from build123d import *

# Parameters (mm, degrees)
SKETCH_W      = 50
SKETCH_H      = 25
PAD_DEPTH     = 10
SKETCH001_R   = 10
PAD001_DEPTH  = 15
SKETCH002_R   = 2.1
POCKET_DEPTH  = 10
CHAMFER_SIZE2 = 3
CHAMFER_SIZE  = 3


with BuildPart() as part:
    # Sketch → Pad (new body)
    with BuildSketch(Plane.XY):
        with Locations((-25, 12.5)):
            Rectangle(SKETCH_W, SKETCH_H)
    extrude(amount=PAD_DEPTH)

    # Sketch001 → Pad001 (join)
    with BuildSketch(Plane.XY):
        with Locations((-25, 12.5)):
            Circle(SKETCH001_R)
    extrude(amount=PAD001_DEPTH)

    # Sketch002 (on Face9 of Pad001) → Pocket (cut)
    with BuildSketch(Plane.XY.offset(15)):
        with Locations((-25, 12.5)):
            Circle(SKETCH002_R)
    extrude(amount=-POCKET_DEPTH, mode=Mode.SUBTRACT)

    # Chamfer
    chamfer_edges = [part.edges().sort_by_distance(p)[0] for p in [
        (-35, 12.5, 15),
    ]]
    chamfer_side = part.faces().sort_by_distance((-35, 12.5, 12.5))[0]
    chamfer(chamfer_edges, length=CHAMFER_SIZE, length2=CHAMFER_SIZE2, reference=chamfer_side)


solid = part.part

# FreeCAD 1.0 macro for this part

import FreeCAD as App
import Part
import Sketcher

V = App.Vector


def edges_at(feature, points):
    """Names of the edges that pass closest to the given points."""
    edges = feature.Shape.Edges
    near = lambda p: min(range(len(edges)), key=lambda i: edges[i].distToShape(Part.Vertex(*p))[0])
    return sorted({f"Edge{near(p) + 1}" for p in points})


def add_polygon(sketch, points):
    """Adds a closed chain of lines whose ends are joined by coincident constraints."""
    first, n = sketch.GeometryCount, len(points)
    for a, b in zip(points, points[1:] + points[:1]):
        sketch.addGeometry(Part.LineSegment(App.Vector(*a, 0), App.Vector(*b, 0)), False)
    for i in range(n):
        sketch.addConstraint(Sketcher.Constraint("Coincident", first + i, 2, first + (i + 1) % n, 1))

doc = App.newDocument("Part")
body = doc.addObject("PartDesign::Body", "Body")

# Sketch on XY plane
sketch1 = body.newObject("Sketcher::SketchObject", "Sketch")
sketch1.AttachmentSupport = (doc.getObject("XY_Plane"), [""])
sketch1.MapMode = "FlatFace"
add_polygon(sketch1, [(-50, 25), (-50, 0), (0, 0), (0, 25)])  # lines 0-3
sketch1.addConstraint([
    Sketcher.Constraint("Vertical", 0),
    Sketcher.Constraint("Horizontal", 1),
    Sketcher.Constraint("Vertical", 2),
    Sketcher.Constraint("Horizontal", 3),
    Sketcher.Constraint("Coincident", 1, 2, -1, 1),
    Sketcher.Constraint("DistanceX", 1, 1, 1, 2, 50.0),
    Sketcher.Constraint("DistanceY", 0, 2, 0, 1, 25.0),
])
pad1 = body.newObject("PartDesign::Pad", "Pad")
pad1.Profile = sketch1
pad1.Length = 10

# Sketch on XY plane
sketch2 = body.newObject("Sketcher::SketchObject", "Sketch001")
sketch2.AttachmentSupport = (doc.getObject("XY_Plane"), [""])
sketch2.MapMode = "FlatFace"
sketch2.addGeometry(Part.Circle(V(-25, 12, 0), V(0, 0, 1), 10), False)
sketch2.addConstraint([
    Sketcher.Constraint("Diameter", 0, 20.0),
    Sketcher.Constraint("DistanceX", 0, 3, -1, 1, 25.0),
    Sketcher.Constraint("DistanceY", -1, 1, 0, 3, 12.5),
])
pad2 = body.newObject("PartDesign::Pad", "Pad001")
pad2.Profile = sketch2
pad2.Length = 15

# Sketch on XY plane
sketch3 = body.newObject("Sketcher::SketchObject", "Sketch002")
sketch3.AttachmentSupport = (doc.getObject("XY_Plane"), [""])
sketch3.MapMode = "FlatFace"
sketch3.AttachmentOffset = App.Placement(V(0, 0, 15), App.Rotation())
sketch3.addGeometry(Part.Circle(V(-25, 12.5, 0), V(0, 0, 1), 2.1), False)
sketch3.addConstraint([
    Sketcher.Constraint("Diameter", 0, 4.2),
    Sketcher.Constraint("DistanceX", 0, 3, -1, 1, 25.0),
    Sketcher.Constraint("DistanceY", -1, 1, 0, 3, 12.5),
])
pocket1 = body.newObject("PartDesign::Pocket", "Pocket")
pocket1.Profile = sketch3
pocket1.Length = 10
doc.recompute()

chamfer = body.newObject("PartDesign::Chamfer", "Chamfer")
chamfer.Base = (pocket1, edges_at(pocket1, [(-35, 12.5, 15)]))
chamfer.ChamferType = "Two distances"
chamfer.Size = 3
chamfer.Size2 = 3

doc.recompute()
